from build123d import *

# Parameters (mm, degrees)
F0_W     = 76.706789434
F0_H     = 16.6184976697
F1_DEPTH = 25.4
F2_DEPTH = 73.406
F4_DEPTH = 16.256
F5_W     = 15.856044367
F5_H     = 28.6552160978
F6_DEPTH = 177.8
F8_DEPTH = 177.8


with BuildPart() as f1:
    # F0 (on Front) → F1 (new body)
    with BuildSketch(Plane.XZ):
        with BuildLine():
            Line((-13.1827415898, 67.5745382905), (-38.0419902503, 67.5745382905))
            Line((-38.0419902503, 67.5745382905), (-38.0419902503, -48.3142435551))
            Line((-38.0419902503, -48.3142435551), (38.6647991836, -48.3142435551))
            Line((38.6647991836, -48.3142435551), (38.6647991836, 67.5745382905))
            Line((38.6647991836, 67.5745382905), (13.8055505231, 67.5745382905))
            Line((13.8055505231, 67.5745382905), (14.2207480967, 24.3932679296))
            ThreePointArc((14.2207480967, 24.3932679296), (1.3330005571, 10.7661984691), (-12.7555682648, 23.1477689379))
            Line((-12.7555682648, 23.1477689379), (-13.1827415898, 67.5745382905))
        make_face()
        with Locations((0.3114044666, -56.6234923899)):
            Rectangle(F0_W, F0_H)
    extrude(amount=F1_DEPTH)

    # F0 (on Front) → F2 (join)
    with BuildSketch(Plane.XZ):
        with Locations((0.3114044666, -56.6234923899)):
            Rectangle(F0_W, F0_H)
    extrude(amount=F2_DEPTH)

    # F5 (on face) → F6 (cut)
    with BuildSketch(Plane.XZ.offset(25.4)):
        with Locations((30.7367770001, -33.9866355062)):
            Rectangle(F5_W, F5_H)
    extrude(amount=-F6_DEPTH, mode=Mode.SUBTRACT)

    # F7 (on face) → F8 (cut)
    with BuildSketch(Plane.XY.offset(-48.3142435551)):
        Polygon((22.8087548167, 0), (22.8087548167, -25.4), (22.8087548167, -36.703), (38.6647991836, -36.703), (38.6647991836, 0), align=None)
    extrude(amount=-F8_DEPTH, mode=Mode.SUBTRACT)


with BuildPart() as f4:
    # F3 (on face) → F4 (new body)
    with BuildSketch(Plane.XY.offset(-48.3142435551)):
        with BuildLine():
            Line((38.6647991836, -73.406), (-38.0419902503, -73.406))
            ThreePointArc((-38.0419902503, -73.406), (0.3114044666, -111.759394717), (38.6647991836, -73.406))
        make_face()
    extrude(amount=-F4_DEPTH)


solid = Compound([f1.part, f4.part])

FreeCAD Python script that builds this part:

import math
import FreeCAD as App
import Part
import Sketcher

V = App.Vector
Q = App.Units.Quantity

doc = App.newDocument("Part")
body = doc.addObject("PartDesign::Body", "Body")

# Sketch on XZ plane
sketch1 = body.newObject("Sketcher::SketchObject", "Sketch")
sketch1.AttachmentSupport = (doc.getObject("XZ_Plane"), [""])
sketch1.MapMode = "FlatFace"
sketch1.addGeometry([
    Part.LineSegment(V(-13.182742, 67.574538, 0), V(-38.04199, 67.574538, 0)),  # 0
    Part.LineSegment(V(-38.04199, 67.574538, 0), V(-38.04199, -64.932741, 0)),  # 1
    Part.LineSegment(V(-38.04199, -64.932741, 0), V(38.664799, -64.932741, 0)),  # 2
    Part.LineSegment(V(38.664799, -64.932741, 0), V(38.664799, 67.574538, 0)),  # 3
    Part.LineSegment(V(38.664799, 67.574538, 0), V(13.805551, 67.574538, 0)),  # 4
    Part.LineSegment(V(13.805551, 67.574538, 0), V(14.220748, 24.393268, 0)),  # 5
    Part.ArcOfCircle(Part.Circle(V(0.709835, 24.263357, 0), V(0, 0, 1), 13.511537), math.radians(-175.263947), math.radians(0.550895)),  # 6
    Part.LineSegment(V(-12.755568, 23.147769, 0), V(-13.182742, 67.574538, 0)),  # 7
], False)
sketch1.addConstraint([
    Sketcher.Constraint("Coincident", 0, 2, 1, 1),
    Sketcher.Constraint("Coincident", 1, 2, 2, 1),
    Sketcher.Constraint("Coincident", 2, 2, 3, 1),
    Sketcher.Constraint("Coincident", 3, 2, 4, 1),
    Sketcher.Constraint("Coincident", 4, 2, 5, 1),
    Sketcher.Constraint("Tangent", 5, 2, 6, 2),
    Sketcher.Constraint("Coincident", 6, 1, 7, 1),
    Sketcher.Constraint("Coincident", 7, 2, 0, 1),
    Sketcher.Constraint("Horizontal", 0),
    Sketcher.Constraint("Vertical", 1),
    Sketcher.Constraint("Horizontal", 2),
    Sketcher.Constraint("Vertical", 3),
    Sketcher.Constraint("Horizontal", 4),
    Sketcher.Constraint("Parallel", 5, 7),
    Sketcher.Constraint("Horizontal", 0, 2, 3, 2),
    Sketcher.Constraint("Equal", 0, 4),
    Sketcher.Constraint("Radius", 6, 13.511537),
    Sketcher.Constraint("DistanceX", 0, 2, 0, 1, 24.859249),
    Sketcher.Constraint("DistanceX", 2, 1, 2, 2, 76.706789),
    Sketcher.Constraint("DistanceY", 1, 2, 1, 1, 132.50728),
    Sketcher.Constraint("DistanceX", -1, 1, 2, 2, 38.664799),
    Sketcher.Constraint("DistanceY", 1, 2, 6, 3, 89.196099),
    Sketcher.Constraint("DistanceY", 6, 1, 5, 2, 1.245499),
    Sketcher.Constraint("DistanceY", -1, 1, 0, 2, 67.574538),
])
pad1 = body.newObject("PartDesign::Pad", "Pad")
pad1.Profile = sketch1
pad1.Length = Q("1 in")

# Sketch on XZ plane
sketch2 = body.newObject("Sketcher::SketchObject", "Sketch001")
sketch2.AttachmentSupport = (doc.getObject("XZ_Plane"), [""])
sketch2.MapMode = "FlatFace"
sketch2.addGeometry([
    Part.LineSegment(V(-38.04199, -48.314244, 0), V(-38.04199, -64.932741, 0)),
    Part.LineSegment(V(-38.04199, -64.932741, 0), V(38.664799, -64.932741, 0)),
    Part.LineSegment(V(38.664799, -64.932741, 0), V(38.664799, -48.314244, 0)),
    Part.LineSegment(V(38.664799, -48.314244, 0), V(-38.04199, -48.314244, 0)),
], False)
sketch2.addConstraint([
    Sketcher.Constraint("Coincident", 0, 2, 1, 1),
    Sketcher.Constraint("Coincident", 1, 2, 2, 1),
    Sketcher.Constraint("Coincident", 2, 2, 3, 1),
    Sketcher.Constraint("Coincident", 3, 2, 0, 1),
    Sketcher.Constraint("Vertical", 0),
    Sketcher.Constraint("Horizontal", 1),
    Sketcher.Constraint("Vertical", 2),
    Sketcher.Constraint("Horizontal", 3),
    Sketcher.Constraint("DistanceX", 1, 1, 1, 2, 76.706789),
    Sketcher.Constraint("DistanceX", -1, 1, 1, 2, 38.664799),
    Sketcher.Constraint("DistanceY", 0, 2, 0, 1, 16.618498),
    Sketcher.Constraint("DistanceY", 0, 2, -1, 1, 64.932741),
])
pad2 = body.newObject("PartDesign::Pad", "Pad001")
pad2.Profile = sketch2
pad2.Length = Q("2.89 in")

# Sketch on XZ plane
sketch3 = body.newObject("Sketcher::SketchObject", "Sketch002")
sketch3.AttachmentSupport = (doc.getObject("XZ_Plane"), [""])
sketch3.MapMode = "FlatFace"
sketch3.AttachmentOffset = App.Placement(V(0, 0, 1 * 25.4), App.Rotation())
sketch3.addGeometry([
    Part.LineSegment(V(22.808755, -19.659027, 0), V(22.808755, -48.314244, 0)),
    Part.LineSegment(V(22.808755, -48.314244, 0), V(38.664799, -48.314244, 0)),
    Part.LineSegment(V(38.664799, -48.314244, 0), V(38.664799, -19.659027, 0)),
    Part.LineSegment(V(38.664799, -19.659027, 0), V(22.808755, -19.659027, 0)),
], False)
sketch3.addConstraint([
    Sketcher.Constraint("Coincident", 0, 2, 1, 1),
    Sketcher.Constraint("Coincident", 1, 2, 2, 1),
    Sketcher.Constraint("Coincident", 2, 2, 3, 1),
    Sketcher.Constraint("Coincident", 3, 2, 0, 1),
    Sketcher.Constraint("Vertical", 0),
    Sketcher.Constraint("Horizontal", 1),
    Sketcher.Constraint("Vertical", 2),
    Sketcher.Constraint("Horizontal", 3),
    Sketcher.Constraint("DistanceX", -1, 1, 1, 2, 38.664799),
    Sketcher.Constraint("DistanceX", 1, 1, 1, 2, 15.856044),
    Sketcher.Constraint("DistanceY", 0, 2, 0, 1, 28.655216),
    Sketcher.Constraint("DistanceY", 0, 2, -1, 1, 48.314244),
])
pocket1 = body.newObject("PartDesign::Pocket", "Pocket")
pocket1.Profile = sketch3
pocket1.Length = Q("7 in")

# Sketch on XY plane
sketch4 = body.newObject("Sketcher::SketchObject", "Sketch003")
sketch4.AttachmentSupport = (doc.getObject("XY_Plane"), [""])
sketch4.MapMode = "FlatFace"
sketch4.AttachmentOffset = App.Placement(V(0, 0, -48.314244), App.Rotation())
sketch4.addGeometry([
    Part.LineSegment(V(22.808755, 0, 0), V(22.808755, -36.703, 0)),
    Part.LineSegment(V(22.808755, -36.703, 0), V(38.664799, -36.703, 0)),
    Part.LineSegment(V(38.664799, -36.703, 0), V(38.664799, 0, 0)),
    Part.LineSegment(V(38.664799, 0, 0), V(22.808755, 0, 0)),
], False)
sketch4.addConstraint([
    Sketcher.Constraint("Coincident", 0, 2, 1, 1),
    Sketcher.Constraint("Coincident", 1, 2, 2, 1),
    Sketcher.Constraint("Coincident", 2, 2, 3, 1),
    Sketcher.Constraint("Coincident", 3, 2, 0, 1),
    Sketcher.Constraint("Vertical", 0),
    Sketcher.Constraint("Horizontal", 1),
    Sketcher.Constraint("Vertical", 2),
    Sketcher.Constraint("Horizontal", 3),
    Sketcher.Constraint("PointOnObject", 2, 2, -1),
    Sketcher.Constraint("DistanceY", 0, 2, 0, 1, Q("1.445 in")),
    Sketcher.Constraint("DistanceX", -1, 1, 1, 2, 38.664799),
    Sketcher.Constraint("DistanceX", 1, 1, 1, 2, 15.856044),
])
pocket2 = body.newObject("PartDesign::Pocket", "Pocket001")
pocket2.Profile = sketch4
pocket2.Length = Q("7 in")
body2 = doc.addObject("PartDesign::Body", "Body001")

# Sketch on XY plane
sketch5 = body2.newObject("Sketcher::SketchObject", "Sketch004")
sketch5.AttachmentSupport = (doc.getObject("XY_Plane001"), [""])
sketch5.MapMode = "FlatFace"
sketch5.AttachmentOffset = App.Placement(V(0, 0, -48.314244), App.Rotation())
sketch5.addGeometry([
    Part.LineSegment(V(38.664799, -73.406, 0), V(-38.04199, -73.406, 0)),
    Part.ArcOfCircle(Part.Circle(V(0.311404, -73.406, 0), V(0, 0, 1), 38.353395), math.radians(180), math.radians(360)),
], False)
sketch5.addConstraint([
    Sketcher.Constraint("Coincident", 0, 1, 1, 2),
    Sketcher.Constraint("Coincident", 1, 1, 0, 2),
    Sketcher.Constraint("Horizontal", 0),
    Sketcher.Constraint("Horizontal", 1, 3, 0, 1),
    Sketcher.Constraint("DistanceY", 1, 3, -1, 1, Q("2.89 in")),
    Sketcher.Constraint("Radius", 1, 38.353395),
    Sketcher.Constraint("DistanceX", -1, 1, 0, 1, 38.664799),
])
pad3 = body2.newObject("PartDesign::Pad", "Pad002")
pad3.Profile = sketch5
pad3.Length = Q("0.64 in")
pad3.Reversed = True

doc.recompute()
